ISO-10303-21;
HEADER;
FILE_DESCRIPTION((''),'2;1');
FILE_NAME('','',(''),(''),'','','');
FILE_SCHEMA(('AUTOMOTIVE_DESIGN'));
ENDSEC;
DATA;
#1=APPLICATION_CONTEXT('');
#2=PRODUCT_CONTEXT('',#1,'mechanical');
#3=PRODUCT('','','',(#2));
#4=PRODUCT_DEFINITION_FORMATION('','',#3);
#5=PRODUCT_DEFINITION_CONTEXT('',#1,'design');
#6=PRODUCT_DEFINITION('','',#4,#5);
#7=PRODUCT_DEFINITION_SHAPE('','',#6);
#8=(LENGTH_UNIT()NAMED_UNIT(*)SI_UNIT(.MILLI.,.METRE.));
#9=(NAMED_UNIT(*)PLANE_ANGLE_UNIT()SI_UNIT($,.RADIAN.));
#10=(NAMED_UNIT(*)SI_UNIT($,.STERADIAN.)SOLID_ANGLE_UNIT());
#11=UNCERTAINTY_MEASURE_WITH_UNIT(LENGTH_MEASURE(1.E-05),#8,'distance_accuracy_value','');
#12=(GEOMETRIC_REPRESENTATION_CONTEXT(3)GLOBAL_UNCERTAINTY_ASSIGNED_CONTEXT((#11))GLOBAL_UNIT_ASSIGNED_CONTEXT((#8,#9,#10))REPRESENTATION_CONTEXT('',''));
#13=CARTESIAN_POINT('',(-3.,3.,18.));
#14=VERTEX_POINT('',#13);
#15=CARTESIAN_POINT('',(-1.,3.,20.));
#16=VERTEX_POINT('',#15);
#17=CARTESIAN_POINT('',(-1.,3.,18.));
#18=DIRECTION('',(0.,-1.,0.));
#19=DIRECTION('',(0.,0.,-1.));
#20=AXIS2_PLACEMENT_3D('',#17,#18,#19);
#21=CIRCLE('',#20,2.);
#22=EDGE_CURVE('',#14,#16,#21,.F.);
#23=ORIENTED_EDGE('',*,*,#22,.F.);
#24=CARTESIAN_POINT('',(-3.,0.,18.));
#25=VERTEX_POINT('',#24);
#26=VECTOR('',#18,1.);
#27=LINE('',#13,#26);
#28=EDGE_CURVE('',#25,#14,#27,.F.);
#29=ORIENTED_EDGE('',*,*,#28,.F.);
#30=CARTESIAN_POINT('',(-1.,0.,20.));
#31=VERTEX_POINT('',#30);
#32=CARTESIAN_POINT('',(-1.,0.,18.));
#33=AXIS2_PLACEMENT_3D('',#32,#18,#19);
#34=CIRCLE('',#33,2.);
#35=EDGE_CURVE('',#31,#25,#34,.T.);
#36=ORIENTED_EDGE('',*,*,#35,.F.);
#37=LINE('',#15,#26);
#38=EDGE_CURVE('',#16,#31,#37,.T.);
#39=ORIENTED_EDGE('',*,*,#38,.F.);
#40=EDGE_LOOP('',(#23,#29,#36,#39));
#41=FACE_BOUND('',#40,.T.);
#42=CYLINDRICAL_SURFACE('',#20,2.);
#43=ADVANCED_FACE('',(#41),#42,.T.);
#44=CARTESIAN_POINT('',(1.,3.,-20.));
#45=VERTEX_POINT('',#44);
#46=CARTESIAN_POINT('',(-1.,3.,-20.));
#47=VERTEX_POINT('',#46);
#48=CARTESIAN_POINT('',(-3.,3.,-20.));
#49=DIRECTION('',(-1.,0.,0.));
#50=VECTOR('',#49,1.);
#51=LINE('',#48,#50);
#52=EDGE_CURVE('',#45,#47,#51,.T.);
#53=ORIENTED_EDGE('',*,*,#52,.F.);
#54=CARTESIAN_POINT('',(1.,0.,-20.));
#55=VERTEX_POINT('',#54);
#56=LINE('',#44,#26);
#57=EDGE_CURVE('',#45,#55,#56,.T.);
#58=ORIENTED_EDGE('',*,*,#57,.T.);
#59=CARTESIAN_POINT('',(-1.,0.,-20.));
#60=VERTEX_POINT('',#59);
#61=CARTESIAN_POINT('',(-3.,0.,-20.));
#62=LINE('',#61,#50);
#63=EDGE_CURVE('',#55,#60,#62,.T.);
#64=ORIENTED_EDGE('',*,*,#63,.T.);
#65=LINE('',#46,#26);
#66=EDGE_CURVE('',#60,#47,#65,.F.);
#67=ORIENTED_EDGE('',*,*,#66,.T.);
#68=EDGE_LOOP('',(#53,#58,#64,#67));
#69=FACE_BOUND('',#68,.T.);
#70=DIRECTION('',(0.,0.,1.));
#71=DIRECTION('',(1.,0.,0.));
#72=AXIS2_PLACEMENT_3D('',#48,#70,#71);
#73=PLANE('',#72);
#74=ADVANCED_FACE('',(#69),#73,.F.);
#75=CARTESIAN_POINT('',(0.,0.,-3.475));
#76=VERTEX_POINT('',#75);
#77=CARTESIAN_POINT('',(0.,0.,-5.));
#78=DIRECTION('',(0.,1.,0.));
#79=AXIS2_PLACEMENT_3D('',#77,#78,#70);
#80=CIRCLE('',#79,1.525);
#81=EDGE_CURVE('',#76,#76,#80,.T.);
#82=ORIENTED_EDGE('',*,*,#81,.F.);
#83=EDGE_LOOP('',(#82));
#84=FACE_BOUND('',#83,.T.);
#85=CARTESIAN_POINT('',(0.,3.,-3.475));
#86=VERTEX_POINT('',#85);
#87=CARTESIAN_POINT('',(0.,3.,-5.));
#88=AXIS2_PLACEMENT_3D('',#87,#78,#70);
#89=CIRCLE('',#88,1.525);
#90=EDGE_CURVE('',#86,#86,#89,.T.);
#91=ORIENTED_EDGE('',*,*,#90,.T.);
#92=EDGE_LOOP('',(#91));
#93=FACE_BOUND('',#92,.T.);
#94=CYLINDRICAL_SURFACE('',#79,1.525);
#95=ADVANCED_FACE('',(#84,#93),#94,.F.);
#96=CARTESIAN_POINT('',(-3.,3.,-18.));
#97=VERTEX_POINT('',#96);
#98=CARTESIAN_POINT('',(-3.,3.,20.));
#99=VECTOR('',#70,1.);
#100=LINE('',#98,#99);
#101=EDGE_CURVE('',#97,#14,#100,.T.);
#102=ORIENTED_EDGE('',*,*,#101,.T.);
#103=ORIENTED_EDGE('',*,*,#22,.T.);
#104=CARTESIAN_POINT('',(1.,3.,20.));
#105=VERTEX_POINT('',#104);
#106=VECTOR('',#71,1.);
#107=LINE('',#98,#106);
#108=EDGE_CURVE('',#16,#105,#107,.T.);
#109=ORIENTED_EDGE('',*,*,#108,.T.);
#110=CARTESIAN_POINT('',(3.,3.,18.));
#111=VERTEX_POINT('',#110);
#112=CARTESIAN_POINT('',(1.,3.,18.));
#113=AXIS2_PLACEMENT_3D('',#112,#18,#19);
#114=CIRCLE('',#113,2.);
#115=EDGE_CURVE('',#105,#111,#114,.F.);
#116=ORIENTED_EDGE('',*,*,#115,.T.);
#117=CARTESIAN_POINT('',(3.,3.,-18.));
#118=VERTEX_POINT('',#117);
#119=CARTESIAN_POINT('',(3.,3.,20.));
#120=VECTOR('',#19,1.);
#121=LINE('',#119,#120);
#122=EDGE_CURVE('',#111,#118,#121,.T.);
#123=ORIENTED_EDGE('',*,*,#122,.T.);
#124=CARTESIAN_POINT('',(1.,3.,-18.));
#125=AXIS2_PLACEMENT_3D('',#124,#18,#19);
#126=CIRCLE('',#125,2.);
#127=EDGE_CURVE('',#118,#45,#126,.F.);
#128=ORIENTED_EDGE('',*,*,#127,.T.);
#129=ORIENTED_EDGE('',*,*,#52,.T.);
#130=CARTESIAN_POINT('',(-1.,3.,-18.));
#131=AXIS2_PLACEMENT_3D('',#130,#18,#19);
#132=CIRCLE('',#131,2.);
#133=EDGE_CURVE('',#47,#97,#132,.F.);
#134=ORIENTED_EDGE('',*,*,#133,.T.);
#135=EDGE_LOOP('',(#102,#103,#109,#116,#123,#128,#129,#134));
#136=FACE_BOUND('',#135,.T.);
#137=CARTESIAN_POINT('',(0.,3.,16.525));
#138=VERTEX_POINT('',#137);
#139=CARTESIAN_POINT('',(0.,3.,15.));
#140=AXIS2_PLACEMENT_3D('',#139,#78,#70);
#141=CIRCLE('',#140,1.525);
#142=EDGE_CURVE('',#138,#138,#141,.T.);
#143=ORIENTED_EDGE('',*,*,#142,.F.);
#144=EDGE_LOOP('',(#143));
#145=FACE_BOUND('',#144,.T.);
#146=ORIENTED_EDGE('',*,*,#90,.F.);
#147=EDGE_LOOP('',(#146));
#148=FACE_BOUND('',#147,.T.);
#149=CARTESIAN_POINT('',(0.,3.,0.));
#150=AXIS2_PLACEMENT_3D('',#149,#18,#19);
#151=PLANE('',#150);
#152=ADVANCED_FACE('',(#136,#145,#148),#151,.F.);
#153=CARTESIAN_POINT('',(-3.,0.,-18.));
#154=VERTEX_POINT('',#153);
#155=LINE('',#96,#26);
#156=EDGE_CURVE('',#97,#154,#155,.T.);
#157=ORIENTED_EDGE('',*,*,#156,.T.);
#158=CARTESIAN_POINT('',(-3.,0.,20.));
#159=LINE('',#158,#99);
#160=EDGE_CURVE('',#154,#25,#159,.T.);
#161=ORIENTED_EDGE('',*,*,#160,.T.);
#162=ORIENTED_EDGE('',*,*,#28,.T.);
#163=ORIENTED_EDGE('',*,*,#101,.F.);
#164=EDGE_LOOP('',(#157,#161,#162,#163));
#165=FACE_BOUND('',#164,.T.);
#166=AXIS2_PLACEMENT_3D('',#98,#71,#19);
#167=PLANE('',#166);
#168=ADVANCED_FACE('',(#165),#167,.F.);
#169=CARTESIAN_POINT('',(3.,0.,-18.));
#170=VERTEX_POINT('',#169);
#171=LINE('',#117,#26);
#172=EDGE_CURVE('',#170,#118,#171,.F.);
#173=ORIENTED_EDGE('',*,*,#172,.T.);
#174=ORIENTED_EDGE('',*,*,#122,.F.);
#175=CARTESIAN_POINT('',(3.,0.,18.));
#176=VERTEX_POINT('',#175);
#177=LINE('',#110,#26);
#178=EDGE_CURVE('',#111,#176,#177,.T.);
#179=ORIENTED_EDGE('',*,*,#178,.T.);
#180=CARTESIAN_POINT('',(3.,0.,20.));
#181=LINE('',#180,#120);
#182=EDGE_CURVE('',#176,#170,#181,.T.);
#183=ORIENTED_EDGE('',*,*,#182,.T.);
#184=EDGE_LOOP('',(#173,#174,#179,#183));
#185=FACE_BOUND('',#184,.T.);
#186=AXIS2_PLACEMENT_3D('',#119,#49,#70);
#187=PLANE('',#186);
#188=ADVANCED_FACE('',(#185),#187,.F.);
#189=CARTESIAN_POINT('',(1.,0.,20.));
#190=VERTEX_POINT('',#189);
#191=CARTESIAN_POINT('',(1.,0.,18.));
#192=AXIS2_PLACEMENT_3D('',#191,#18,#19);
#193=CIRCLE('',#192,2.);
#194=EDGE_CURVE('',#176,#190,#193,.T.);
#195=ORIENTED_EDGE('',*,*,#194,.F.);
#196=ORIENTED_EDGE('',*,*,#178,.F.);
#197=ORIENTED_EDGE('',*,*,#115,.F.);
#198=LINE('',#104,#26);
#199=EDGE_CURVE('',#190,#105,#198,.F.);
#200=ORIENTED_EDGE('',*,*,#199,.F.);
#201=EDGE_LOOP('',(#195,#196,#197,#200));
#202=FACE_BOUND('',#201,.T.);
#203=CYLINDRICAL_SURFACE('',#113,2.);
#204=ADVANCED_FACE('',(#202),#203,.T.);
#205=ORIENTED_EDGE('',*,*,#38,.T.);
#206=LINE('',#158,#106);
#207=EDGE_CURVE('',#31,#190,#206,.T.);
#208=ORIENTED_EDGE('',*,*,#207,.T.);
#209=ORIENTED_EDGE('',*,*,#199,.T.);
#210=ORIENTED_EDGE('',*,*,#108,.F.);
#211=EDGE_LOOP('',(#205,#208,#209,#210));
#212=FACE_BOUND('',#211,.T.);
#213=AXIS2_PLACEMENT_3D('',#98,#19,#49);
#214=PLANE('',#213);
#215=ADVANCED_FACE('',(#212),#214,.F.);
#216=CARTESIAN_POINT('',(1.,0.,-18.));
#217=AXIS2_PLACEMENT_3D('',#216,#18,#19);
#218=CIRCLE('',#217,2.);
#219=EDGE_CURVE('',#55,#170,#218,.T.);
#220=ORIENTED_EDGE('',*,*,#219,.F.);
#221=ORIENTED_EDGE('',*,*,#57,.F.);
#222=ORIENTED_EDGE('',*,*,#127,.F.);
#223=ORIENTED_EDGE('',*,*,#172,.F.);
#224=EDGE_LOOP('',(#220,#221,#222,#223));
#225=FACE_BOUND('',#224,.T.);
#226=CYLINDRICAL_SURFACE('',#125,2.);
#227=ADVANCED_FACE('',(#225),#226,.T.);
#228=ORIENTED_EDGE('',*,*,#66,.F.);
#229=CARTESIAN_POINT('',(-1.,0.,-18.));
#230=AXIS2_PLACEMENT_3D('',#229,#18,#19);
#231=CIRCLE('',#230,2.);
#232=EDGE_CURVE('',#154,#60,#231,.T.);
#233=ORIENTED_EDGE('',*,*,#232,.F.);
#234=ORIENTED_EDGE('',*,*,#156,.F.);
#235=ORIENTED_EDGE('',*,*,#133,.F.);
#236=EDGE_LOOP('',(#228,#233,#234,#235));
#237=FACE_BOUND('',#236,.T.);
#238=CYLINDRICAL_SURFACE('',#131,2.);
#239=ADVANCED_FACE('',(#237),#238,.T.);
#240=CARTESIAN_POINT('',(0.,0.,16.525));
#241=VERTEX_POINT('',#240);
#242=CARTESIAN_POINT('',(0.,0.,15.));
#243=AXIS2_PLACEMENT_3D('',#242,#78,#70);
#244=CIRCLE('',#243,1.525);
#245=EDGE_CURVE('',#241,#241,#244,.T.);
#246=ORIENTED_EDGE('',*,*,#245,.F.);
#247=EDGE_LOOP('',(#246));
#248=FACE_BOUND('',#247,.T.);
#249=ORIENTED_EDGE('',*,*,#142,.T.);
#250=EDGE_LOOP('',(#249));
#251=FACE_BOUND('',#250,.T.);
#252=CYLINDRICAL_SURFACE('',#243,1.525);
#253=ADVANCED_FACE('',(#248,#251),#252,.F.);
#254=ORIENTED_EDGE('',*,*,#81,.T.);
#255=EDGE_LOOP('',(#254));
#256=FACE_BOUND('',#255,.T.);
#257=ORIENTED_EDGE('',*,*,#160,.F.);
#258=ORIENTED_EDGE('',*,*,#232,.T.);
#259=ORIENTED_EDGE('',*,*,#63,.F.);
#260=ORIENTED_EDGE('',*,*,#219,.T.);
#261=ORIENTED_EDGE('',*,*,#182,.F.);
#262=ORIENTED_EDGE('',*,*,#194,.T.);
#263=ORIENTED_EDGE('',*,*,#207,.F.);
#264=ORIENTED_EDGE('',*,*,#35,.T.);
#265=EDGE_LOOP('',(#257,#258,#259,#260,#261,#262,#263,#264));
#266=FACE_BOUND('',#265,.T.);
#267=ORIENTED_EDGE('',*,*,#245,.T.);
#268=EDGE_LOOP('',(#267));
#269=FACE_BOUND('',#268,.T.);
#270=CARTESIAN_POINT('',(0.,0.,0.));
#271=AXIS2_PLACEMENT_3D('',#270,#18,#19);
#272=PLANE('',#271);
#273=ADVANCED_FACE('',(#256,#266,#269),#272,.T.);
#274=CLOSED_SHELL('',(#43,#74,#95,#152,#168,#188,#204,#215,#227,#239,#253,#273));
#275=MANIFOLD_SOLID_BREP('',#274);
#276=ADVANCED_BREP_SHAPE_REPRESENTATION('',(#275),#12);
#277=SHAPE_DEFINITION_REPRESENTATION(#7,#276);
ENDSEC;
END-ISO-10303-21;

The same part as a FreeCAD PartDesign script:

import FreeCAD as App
import Part
import Sketcher

V = App.Vector
Q = App.Units.Quantity


def edges_at(feature, points):
    """Names of the edges that pass closest to the given points."""
    edges = feature.Shape.Edges
    near = lambda p: min(range(len(edges)), key=lambda i: edges[i].distToShape(Part.Vertex(*p))[0])
    return sorted({f"Edge{near(p) + 1}" for p in points})


def add_polygon(sketch, points):
    """Adds a closed chain of lines whose ends are joined by coincident constraints."""
    first, n = sketch.GeometryCount, len(points)
    for a, b in zip(points, points[1:] + points[:1]):
        sketch.addGeometry(Part.LineSegment(App.Vector(*a, 0), App.Vector(*b, 0)), False)
    for i in range(n):
        sketch.addConstraint(Sketcher.Constraint("Coincident", first + i, 2, first + (i + 1) % n, 1))

doc = App.newDocument("Part")
body = doc.addObject("PartDesign::Body", "Body")

# Sketch on XZ plane
sketch1 = body.newObject("Sketcher::SketchObject", "Sketch")
sketch1.AttachmentSupport = (doc.getObject("XZ_Plane"), [""])
sketch1.MapMode = "FlatFace"
add_polygon(sketch1, [(-3, -20), (-3, 20), (3, 20), (3, -20)])  # lines 0-3
sketch1.addConstraint(Sketcher.Constraint("Vertical", 0))
sketch1.addConstraint(Sketcher.Constraint("Horizontal", 1))
sketch1.addConstraint(Sketcher.Constraint("Vertical", 2))
sketch1.addConstraint(Sketcher.Constraint("Horizontal", 3))
sketch1.addConstraint(Sketcher.Constraint("Symmetric", 0, 2, 2, 2, -1, 1))
sketch1.addConstraint(Sketcher.Constraint("DistanceX", 1, 1, 1, 2, Q("6 mm")))
sketch1.addConstraint(Sketcher.Constraint("DistanceY", 0, 1, 0, 2, Q("40 mm")))
pad1 = body.newObject("PartDesign::Pad", "Pad")
pad1.Profile = sketch1
pad1.Length = 3
pad1.Reversed = True
doc.recompute()

fillet = body.newObject("PartDesign::Fillet", "Fillet")
fillet.Base = (pad1, edges_at(pad1, [
    (3, 1.5, 20),
    (-3, 1.5, 20),
    (-3, 1.5, -20),
    (3, 1.5, -20),
]))
fillet.Radius = 2

# Sketch on XZ plane
sketch2 = body.newObject("Sketcher::SketchObject", "Sketch001")
sketch2.AttachmentSupport = (doc.getObject("XZ_Plane"), [""])
sketch2.MapMode = "FlatFace"
sketch2.AttachmentOffset = App.Placement(V(0, 0, -3), App.Rotation())
sketch2.addGeometry(Part.Circle(V(0, -5, 0), V(0, 0, 1), 1.525), False)
sketch2.addGeometry(Part.Circle(V(0, 15, 0), V(0, 0, 1), 1.525), False)
sketch2.addConstraint(Sketcher.Constraint("Equal", 0, 1))
sketch2.addConstraint(Sketcher.Constraint("PointOnObject", 0, 3, -2))
sketch2.addConstraint(Sketcher.Constraint("PointOnObject", 1, 3, -2))
sketch2.addConstraint(Sketcher.Constraint("Diameter", 0, Q("3.05 mm")))
sketch2.addConstraint(Sketcher.Constraint("DistanceY", 0, 3, -1, 1, Q("5 mm")))
sketch2.addConstraint(Sketcher.Constraint("DistanceY", -1, 1, 1, 3, Q("15 mm")))
pocket1 = body.newObject("PartDesign::Pocket", "Pocket")
pocket1.Profile = sketch2
pocket1.Length = 3
pocket1.Reversed = True

doc.recompute()
